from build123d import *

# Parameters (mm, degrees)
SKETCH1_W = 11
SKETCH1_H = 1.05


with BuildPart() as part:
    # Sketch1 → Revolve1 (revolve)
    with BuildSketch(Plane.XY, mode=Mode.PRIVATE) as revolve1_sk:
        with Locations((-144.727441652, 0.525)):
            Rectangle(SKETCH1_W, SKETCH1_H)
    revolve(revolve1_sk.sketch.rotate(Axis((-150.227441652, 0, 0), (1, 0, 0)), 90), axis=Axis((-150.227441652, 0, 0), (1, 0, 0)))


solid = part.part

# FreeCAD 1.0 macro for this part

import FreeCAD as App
import Part
import Sketcher

V = App.Vector
Q = App.Units.Quantity

doc = App.newDocument("Part")
params = doc.addObject("Spreadsheet::Sheet", "Params")
for row, (alias, value) in enumerate([
    ("sketch1_width", "11 mm"),
    ("sketch1_height", "1.05 mm"),
    ("revolution_angle", "360 deg"),
], start=1):
    params.set(f"A{row}", alias)
    params.set(f"B{row}", "=" + value)
    params.setAlias(f"B{row}", alias)

body = doc.addObject("PartDesign::Body", "Body")

sketch1 = body.newObject("Sketcher::SketchObject", "Sketch")
sketch1.AttachmentSupport = (doc.getObject("XY_Plane"), [""])
sketch1.MapMode = "FlatFace"
sketch1.addGeometry([
    Part.LineSegment(V(-150.2, 1.1, 0), V(-150.2, 0, 0)),
    Part.LineSegment(V(-150.2, 0, 0), V(-139.2, 0, 0)),
    Part.LineSegment(V(-139.2, 0, 0), V(-139.2, 1.1, 0)),
    Part.LineSegment(V(-139.2, 1.1, 0), V(-150.2, 1.1, 0)),
], False)
sketch1.addConstraint([
    Sketcher.Constraint("Coincident", 0, 2, 1, 1),
    Sketcher.Constraint("Coincident", 1, 2, 2, 1),
    Sketcher.Constraint("Coincident", 2, 2, 3, 1),
    Sketcher.Constraint("Coincident", 3, 2, 0, 1),
    Sketcher.Constraint("Vertical", 0),
    Sketcher.Constraint("Horizontal", 1),
    Sketcher.Constraint("Vertical", 2),
    Sketcher.Constraint("Horizontal", 3),
    Sketcher.Constraint("PointOnObject", 0, 2, -1),
    Sketcher.Constraint("DistanceX", 1, 1, 1, 2, Q("11 mm")),
    Sketcher.Constraint("DistanceY", 0, 2, 0, 1, Q("1.05 mm")),
    Sketcher.Constraint("DistanceX", 0, 2, -1, 1, Q("150.227442 mm")),
])
sketch1.setExpression("Constraints[9]", "Params.sketch1_width")
sketch1.setExpression("Constraints[10]", "Params.sketch1_height")
revolution = body.newObject("PartDesign::Revolution", "Revolution")
revolution.Profile = sketch1
revolution.ReferenceAxis = (sketch1, ["H_Axis"])
revolution.setExpression("Angle", "Params.revolution_angle")

doc.recompute()
